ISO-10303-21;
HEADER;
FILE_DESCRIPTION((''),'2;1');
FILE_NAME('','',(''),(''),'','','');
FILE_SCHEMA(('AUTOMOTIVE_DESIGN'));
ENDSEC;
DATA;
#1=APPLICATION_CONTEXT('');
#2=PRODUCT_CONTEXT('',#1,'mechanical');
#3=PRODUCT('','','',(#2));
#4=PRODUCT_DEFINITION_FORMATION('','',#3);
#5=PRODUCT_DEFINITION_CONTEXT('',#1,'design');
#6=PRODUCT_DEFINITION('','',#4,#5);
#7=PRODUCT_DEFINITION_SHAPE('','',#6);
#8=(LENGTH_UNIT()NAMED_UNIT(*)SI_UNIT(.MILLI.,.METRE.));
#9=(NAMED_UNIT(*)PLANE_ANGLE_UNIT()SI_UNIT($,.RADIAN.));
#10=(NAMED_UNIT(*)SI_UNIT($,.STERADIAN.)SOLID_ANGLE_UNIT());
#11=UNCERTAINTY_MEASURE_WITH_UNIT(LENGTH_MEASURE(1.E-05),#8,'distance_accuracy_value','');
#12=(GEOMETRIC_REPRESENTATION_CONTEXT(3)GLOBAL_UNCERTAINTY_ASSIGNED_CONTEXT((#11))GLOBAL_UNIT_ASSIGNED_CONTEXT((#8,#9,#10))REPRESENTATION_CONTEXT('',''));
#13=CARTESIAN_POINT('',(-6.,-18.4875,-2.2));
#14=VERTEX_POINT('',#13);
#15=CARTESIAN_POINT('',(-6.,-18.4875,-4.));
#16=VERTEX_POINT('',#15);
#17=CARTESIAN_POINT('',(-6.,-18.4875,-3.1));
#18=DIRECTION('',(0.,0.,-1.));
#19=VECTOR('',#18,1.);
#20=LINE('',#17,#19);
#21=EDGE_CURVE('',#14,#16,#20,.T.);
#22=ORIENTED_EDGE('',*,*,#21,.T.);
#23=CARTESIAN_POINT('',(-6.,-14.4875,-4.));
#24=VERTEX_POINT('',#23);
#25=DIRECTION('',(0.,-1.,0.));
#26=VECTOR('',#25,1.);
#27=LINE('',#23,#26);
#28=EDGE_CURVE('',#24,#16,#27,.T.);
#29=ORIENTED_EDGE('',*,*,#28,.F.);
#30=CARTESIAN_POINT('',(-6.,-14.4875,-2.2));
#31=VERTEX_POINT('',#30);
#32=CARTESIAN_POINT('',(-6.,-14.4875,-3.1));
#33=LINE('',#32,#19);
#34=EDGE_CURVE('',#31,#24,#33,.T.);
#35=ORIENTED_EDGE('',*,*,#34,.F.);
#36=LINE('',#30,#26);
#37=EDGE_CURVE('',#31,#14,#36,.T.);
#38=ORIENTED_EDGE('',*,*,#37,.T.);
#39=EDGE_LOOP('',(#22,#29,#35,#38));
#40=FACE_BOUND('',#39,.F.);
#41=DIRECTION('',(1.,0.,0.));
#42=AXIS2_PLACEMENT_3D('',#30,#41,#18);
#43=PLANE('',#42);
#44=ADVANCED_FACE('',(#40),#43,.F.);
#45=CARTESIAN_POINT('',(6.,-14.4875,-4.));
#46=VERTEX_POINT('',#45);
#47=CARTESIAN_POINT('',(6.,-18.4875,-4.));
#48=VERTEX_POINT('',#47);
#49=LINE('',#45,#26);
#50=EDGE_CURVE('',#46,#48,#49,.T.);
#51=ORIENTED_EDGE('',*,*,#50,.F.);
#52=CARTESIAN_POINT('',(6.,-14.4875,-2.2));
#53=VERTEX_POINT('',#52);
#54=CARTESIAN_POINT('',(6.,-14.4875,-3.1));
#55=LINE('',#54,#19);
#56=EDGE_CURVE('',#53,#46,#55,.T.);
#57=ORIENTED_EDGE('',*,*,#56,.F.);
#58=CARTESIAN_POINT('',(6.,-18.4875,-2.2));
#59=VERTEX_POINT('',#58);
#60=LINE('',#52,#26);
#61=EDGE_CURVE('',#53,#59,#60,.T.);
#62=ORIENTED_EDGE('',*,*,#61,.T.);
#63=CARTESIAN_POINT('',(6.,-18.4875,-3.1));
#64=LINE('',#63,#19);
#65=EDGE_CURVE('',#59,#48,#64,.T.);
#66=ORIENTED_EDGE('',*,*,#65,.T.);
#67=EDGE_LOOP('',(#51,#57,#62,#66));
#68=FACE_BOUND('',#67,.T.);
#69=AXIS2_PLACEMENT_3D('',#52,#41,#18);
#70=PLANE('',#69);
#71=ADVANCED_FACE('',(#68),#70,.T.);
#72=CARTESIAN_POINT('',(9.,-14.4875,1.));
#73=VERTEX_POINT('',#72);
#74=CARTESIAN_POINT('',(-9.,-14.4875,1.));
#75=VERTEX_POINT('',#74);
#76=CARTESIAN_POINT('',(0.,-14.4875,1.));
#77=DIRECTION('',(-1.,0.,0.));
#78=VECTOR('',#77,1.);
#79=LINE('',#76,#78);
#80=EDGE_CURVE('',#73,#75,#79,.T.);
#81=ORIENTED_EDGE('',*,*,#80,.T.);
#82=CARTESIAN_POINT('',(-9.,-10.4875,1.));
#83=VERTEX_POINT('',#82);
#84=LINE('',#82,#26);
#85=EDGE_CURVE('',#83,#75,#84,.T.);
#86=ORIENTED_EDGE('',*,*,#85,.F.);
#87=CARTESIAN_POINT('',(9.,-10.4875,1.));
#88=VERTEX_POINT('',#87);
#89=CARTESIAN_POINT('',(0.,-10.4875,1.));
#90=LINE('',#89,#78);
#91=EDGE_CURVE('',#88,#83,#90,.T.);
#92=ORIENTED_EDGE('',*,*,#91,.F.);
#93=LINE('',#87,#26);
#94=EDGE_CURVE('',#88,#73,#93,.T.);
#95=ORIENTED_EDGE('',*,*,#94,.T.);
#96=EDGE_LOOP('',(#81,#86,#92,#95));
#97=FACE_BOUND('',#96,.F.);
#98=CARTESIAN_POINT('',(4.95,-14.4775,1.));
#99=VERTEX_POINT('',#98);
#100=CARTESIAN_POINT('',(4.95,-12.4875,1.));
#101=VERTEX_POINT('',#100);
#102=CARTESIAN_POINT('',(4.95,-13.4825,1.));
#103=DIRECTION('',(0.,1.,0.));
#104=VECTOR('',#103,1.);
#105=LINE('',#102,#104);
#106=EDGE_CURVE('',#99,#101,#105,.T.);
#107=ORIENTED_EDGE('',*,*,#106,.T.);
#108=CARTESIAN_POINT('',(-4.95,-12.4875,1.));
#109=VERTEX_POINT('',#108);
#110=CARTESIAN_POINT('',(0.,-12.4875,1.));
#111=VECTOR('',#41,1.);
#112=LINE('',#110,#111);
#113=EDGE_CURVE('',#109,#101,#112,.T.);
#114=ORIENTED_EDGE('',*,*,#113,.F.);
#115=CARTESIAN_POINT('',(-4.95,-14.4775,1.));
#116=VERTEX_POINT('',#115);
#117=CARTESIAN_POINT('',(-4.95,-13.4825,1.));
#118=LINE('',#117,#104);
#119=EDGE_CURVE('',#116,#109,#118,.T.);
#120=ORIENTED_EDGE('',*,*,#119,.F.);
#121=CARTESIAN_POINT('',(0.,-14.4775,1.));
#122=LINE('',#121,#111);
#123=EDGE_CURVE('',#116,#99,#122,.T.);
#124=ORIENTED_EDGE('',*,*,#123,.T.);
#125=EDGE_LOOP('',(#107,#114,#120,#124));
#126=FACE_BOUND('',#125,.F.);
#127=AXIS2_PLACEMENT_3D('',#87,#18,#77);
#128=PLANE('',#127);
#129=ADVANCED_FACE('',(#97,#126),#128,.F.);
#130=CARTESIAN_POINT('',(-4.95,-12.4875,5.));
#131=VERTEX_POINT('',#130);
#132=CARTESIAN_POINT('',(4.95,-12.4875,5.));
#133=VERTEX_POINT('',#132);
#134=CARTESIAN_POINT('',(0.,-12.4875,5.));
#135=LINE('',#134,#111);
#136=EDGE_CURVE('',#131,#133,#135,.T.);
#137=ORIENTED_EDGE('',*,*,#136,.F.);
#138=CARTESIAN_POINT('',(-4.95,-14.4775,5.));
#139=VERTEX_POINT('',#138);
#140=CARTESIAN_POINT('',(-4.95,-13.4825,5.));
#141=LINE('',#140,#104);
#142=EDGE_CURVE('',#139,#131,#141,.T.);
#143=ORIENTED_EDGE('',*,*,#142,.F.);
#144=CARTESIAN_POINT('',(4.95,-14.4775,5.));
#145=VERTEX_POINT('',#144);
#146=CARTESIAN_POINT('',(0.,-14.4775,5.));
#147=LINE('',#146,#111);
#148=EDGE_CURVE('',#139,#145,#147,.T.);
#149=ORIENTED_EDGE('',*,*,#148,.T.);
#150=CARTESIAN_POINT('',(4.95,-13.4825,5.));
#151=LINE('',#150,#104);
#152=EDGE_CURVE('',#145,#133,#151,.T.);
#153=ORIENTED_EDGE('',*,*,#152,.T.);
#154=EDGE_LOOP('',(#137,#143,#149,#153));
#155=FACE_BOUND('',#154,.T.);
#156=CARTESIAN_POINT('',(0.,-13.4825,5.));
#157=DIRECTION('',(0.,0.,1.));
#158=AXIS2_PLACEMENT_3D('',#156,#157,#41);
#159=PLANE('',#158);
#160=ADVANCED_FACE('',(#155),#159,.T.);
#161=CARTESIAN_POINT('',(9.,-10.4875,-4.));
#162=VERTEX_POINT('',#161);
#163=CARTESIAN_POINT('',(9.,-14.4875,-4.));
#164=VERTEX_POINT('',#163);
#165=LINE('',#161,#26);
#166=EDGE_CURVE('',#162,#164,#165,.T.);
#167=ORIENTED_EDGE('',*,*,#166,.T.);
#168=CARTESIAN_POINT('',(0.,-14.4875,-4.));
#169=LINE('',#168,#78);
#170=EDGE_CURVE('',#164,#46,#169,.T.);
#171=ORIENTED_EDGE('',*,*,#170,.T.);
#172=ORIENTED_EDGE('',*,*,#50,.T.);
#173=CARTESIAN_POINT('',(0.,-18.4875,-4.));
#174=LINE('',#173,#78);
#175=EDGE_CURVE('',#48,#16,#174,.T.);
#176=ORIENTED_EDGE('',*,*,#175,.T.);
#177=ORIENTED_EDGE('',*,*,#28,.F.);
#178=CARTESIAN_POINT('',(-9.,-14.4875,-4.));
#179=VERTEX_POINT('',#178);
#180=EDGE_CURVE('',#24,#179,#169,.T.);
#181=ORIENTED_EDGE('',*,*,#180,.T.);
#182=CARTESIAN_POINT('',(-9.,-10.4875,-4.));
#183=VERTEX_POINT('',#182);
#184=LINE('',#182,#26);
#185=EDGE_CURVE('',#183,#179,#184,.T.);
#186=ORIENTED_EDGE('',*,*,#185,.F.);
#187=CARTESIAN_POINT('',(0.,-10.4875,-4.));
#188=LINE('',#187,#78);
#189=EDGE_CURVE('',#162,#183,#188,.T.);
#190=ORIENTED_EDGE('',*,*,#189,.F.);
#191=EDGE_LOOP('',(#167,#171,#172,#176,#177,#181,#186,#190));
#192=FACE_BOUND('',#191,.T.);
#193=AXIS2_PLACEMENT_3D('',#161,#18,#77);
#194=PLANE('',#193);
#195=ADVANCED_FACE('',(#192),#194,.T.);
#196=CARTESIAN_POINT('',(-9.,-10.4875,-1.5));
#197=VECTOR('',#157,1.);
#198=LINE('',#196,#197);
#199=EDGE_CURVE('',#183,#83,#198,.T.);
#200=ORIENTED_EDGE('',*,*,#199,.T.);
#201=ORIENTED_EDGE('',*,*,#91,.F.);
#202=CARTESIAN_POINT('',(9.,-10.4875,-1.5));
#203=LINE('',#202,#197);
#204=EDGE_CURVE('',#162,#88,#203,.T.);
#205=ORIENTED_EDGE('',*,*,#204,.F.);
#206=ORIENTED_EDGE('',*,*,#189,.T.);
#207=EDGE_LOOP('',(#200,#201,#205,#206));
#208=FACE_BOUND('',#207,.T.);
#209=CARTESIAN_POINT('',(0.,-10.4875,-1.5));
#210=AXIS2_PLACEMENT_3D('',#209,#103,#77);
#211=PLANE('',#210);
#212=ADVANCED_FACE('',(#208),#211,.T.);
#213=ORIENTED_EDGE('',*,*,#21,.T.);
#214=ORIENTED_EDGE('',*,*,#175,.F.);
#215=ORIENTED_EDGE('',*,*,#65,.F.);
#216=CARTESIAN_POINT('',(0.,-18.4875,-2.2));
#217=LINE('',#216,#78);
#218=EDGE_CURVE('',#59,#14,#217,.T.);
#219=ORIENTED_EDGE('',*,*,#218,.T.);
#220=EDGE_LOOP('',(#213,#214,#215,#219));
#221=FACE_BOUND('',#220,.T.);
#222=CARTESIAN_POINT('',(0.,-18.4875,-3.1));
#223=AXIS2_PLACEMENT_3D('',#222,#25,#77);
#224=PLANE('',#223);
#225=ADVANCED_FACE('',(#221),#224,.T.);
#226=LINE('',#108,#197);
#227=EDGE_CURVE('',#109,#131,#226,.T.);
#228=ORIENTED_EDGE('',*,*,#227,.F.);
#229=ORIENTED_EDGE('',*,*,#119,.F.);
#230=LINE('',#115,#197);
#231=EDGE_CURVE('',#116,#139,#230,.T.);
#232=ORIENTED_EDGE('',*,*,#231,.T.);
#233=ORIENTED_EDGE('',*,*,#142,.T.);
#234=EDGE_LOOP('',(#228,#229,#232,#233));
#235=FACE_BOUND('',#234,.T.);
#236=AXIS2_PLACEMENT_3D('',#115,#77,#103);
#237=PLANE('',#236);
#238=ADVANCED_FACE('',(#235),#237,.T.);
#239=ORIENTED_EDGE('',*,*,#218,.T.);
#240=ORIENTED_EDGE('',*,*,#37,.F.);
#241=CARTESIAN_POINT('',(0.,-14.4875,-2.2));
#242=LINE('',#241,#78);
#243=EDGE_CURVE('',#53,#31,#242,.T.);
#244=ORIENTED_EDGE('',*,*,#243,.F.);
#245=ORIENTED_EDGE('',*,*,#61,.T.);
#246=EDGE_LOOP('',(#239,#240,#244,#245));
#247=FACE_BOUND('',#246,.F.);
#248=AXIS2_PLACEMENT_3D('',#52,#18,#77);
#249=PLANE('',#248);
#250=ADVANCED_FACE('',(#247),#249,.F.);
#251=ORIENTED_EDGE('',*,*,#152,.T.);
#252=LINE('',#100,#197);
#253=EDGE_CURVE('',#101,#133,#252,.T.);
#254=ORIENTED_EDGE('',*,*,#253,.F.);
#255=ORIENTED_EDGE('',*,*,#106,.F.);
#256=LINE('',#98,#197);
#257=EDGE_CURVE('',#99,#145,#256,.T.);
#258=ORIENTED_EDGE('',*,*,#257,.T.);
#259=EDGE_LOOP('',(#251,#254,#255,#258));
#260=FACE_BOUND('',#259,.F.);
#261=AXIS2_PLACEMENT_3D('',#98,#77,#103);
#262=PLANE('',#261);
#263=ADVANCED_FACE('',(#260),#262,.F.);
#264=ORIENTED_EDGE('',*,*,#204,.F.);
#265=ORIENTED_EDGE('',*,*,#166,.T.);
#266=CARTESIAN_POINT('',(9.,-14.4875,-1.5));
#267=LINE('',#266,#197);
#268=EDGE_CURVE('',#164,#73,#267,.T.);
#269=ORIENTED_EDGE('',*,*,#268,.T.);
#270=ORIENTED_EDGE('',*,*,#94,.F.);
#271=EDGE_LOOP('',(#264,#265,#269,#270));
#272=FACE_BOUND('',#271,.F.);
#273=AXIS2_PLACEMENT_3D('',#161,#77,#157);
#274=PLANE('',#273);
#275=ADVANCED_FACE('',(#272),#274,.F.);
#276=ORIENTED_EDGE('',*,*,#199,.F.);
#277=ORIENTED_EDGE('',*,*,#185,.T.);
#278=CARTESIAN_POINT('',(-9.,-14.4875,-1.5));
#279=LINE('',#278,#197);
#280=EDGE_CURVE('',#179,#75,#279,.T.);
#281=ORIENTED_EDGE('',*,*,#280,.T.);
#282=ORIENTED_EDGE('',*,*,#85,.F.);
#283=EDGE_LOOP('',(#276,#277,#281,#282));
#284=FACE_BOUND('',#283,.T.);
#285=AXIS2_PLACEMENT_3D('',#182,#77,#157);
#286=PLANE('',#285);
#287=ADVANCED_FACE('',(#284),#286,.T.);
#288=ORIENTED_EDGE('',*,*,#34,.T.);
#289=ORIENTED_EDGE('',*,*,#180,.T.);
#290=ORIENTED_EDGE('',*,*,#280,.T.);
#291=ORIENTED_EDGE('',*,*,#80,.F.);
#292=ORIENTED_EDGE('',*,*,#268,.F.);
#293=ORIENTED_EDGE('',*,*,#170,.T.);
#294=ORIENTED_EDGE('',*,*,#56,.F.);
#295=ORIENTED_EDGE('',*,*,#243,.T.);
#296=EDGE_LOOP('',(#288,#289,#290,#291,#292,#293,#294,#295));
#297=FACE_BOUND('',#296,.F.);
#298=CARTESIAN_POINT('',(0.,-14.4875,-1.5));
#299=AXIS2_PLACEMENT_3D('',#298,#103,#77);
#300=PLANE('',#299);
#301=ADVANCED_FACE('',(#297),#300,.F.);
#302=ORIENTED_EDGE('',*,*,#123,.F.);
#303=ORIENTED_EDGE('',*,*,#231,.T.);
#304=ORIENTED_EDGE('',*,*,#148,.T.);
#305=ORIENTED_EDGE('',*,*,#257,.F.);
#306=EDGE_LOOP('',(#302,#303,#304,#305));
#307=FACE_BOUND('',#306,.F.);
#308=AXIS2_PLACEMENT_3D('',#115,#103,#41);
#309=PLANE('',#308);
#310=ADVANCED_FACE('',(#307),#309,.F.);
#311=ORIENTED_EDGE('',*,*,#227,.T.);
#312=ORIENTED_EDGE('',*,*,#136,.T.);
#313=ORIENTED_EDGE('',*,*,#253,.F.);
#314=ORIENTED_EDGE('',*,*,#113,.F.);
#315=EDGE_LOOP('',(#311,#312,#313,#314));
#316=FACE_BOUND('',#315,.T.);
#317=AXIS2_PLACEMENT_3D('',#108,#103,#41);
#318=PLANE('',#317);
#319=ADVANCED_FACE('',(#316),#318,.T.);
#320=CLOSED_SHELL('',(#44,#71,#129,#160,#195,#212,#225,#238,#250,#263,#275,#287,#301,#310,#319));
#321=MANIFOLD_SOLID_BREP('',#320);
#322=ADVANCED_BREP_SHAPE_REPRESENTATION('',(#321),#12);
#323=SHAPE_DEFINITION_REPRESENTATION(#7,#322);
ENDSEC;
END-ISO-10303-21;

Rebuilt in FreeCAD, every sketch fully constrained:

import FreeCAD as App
import Part
import Sketcher
from FreeCAD import Vector


def add_polygon(sketch, points):
    """Adds a closed chain of lines whose ends are joined by coincident constraints."""
    first, n = sketch.GeometryCount, len(points)
    for a, b in zip(points, points[1:] + points[:1]):
        sketch.addGeometry(Part.LineSegment(App.Vector(*a, 0), App.Vector(*b, 0)), False)
    for i in range(n):
        sketch.addConstraint(Sketcher.Constraint("Coincident", first + i, 2, first + (i + 1) % n, 1))

doc = App.newDocument("Part")
body = doc.addObject("PartDesign::Body", "Body")

sketch1 = body.newObject("Sketcher::SketchObject", "Sketch")
sketch1.AttachmentSupport = (doc.getObject("XZ_Plane"), [""])
sketch1.MapMode = "FlatFace"
sketch1.AttachmentOffset = App.Placement(Vector(0, 0, 10.4875), App.Rotation())
add_polygon(sketch1, [(9, 1), (9, -4), (-9, -4), (-9, 1)])
sketch1.addConstraint([
    Sketcher.Constraint("Vertical", 0),
    Sketcher.Constraint("Horizontal", 1),
    Sketcher.Constraint("Vertical", 2),
    Sketcher.Constraint("Horizontal", 3),
    Sketcher.Constraint("DistanceX", 1, 2, 1, 1, 18.0),
    Sketcher.Constraint("DistanceY", 0, 2, 0, 1, 5.0),
    Sketcher.Constraint("DistanceX", -1, 1, 0, 2, 9.0),
    Sketcher.Constraint("DistanceY", 0, 2, -1, 1, 4.0),
])
pad1 = body.newObject("PartDesign::Pad", "Pad")
pad1.Profile = sketch1
pad1.Length = 4

sketch2 = body.newObject("Sketcher::SketchObject", "Sketch001")
sketch2.AttachmentSupport = (doc.getObject("XY_Plane"), [""])
sketch2.MapMode = "FlatFace"
sketch2.AttachmentOffset = App.Placement(Vector(0, 0, 1), App.Rotation())
add_polygon(sketch2, [(-5, -12.5), (-5, -14.5), (5, -14.5), (5, -12.5)])
sketch2.addConstraint([
    Sketcher.Constraint("Vertical", 0),
    Sketcher.Constraint("Horizontal", 1),
    Sketcher.Constraint("Vertical", 2),
    Sketcher.Constraint("Horizontal", 3),
    Sketcher.Constraint("DistanceX", 1, 1, 1, 2, 9.9),
    Sketcher.Constraint("DistanceY", 0, 2, 0, 1, 1.99),
    Sketcher.Constraint("DistanceX", 0, 2, -1, 1, 4.95),
    Sketcher.Constraint("DistanceY", 0, 2, -1, 1, 14.4775),
])
pad2 = body.newObject("PartDesign::Pad", "Pad001")
pad2.Profile = sketch2
pad2.Length = 4

sketch3 = body.newObject("Sketcher::SketchObject", "Sketch002")
sketch3.AttachmentSupport = (doc.getObject("XZ_Plane"), [""])
sketch3.MapMode = "FlatFace"
sketch3.AttachmentOffset = App.Placement(Vector(0, 0, 14.4875), App.Rotation())
add_polygon(sketch3, [(6, -4), (6, -2.2), (-6, -2.2), (-6, -4)])
sketch3.addConstraint([
    Sketcher.Constraint("Vertical", 0),
    Sketcher.Constraint("Horizontal", 1),
    Sketcher.Constraint("Vertical", 2),
    Sketcher.Constraint("Horizontal", 3),
    Sketcher.Constraint("DistanceX", 1, 2, 1, 1, 12.0),
    Sketcher.Constraint("DistanceY", 0, 1, 0, 2, 1.8),
    Sketcher.Constraint("DistanceX", -1, 1, 0, 2, 6.0),
    Sketcher.Constraint("DistanceY", 2, 2, -1, 1, 4.0),
])
pad3 = body.newObject("PartDesign::Pad", "Pad002")
pad3.Profile = sketch3
pad3.Length = 4

doc.recompute()
